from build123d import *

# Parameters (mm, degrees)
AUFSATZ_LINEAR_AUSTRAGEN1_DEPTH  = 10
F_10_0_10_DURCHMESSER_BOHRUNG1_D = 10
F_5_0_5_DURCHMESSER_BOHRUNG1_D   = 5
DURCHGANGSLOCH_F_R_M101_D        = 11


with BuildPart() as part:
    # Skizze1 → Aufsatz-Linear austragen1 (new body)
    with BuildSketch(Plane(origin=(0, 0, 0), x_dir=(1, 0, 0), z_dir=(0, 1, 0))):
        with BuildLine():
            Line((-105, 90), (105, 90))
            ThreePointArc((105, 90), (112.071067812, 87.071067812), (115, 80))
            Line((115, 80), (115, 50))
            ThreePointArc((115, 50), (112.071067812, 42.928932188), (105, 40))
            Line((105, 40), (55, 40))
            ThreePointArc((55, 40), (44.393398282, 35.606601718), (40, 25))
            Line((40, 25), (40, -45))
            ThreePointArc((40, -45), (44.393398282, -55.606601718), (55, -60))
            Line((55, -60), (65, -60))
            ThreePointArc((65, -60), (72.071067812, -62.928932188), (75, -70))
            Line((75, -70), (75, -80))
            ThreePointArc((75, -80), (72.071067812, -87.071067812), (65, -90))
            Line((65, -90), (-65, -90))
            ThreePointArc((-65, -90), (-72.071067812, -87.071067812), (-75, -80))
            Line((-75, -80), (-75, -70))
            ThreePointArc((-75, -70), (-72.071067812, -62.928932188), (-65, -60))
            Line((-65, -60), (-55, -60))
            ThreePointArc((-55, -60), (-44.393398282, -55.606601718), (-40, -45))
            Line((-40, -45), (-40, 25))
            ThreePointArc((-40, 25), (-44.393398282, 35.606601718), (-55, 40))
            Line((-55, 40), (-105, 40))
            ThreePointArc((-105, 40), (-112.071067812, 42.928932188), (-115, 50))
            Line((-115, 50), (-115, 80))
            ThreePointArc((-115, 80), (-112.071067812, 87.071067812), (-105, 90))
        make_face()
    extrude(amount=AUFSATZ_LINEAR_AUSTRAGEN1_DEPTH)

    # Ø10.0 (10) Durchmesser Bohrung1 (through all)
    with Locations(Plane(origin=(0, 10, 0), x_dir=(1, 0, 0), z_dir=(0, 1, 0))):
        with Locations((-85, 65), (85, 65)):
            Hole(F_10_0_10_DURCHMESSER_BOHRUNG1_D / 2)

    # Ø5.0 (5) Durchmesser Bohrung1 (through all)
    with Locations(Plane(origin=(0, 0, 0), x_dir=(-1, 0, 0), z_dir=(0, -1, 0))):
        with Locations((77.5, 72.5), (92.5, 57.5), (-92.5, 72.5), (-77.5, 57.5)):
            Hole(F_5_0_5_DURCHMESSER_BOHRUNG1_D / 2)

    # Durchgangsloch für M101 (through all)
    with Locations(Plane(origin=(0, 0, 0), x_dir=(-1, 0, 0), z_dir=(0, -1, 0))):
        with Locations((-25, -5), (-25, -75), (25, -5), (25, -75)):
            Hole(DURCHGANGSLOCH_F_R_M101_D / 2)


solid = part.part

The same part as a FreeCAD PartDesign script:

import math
import FreeCAD as App
import Part
import Sketcher

V = App.Vector
Q = App.Units.Quantity

doc = App.newDocument("Part")
body = doc.addObject("PartDesign::Body", "Body")

# Sketch on XZ plane
sketch1 = body.newObject("Sketcher::SketchObject", "Sketch")
sketch1.AttachmentSupport = (doc.getObject("XZ_Plane"), [""])
sketch1.MapMode = "FlatFace"
sketch1.addGeometry([
    Part.LineSegment(V(105, -90, 0), V(-105, -90, 0)),  # 0
    Part.ArcOfCircle(Part.Circle(V(-105, -80, 0), V(0, 0, 1), 10), math.radians(180), math.radians(270)),  # 1
    Part.LineSegment(V(-115, -80, 0), V(-115, -50, 0)),  # 2
    Part.ArcOfCircle(Part.Circle(V(-105, -50, 0), V(0, 0, 1), 10), math.radians(90), math.radians(180)),  # 3
    Part.LineSegment(V(-105, -40, 0), V(-55, -40, 0)),  # 4
    Part.ArcOfCircle(Part.Circle(V(-55, -25, 0), V(0, 0, 1), 15), math.radians(-90), math.radians(0)),  # 5
    Part.LineSegment(V(-40, -25, 0), V(-40, 45, 0)),  # 6
    Part.ArcOfCircle(Part.Circle(V(-55, 45, 0), V(0, 0, 1), 15), math.radians(0), math.radians(90)),  # 7
    Part.LineSegment(V(-55, 60, 0), V(-65, 60, 0)),  # 8
    Part.ArcOfCircle(Part.Circle(V(-65, 70, 0), V(0, 0, 1), 10), math.radians(180), math.radians(270)),  # 9
    Part.LineSegment(V(-75, 70, 0), V(-75, 80, 0)),  # 10
    Part.ArcOfCircle(Part.Circle(V(-65, 80, 0), V(0, 0, 1), 10), math.radians(90), math.radians(180)),  # 11
    Part.LineSegment(V(-65, 90, 0), V(65, 90, 0)),  # 12
    Part.ArcOfCircle(Part.Circle(V(65, 80, 0), V(0, 0, 1), 10), math.radians(0), math.radians(90)),  # 13
    Part.LineSegment(V(75, 80, 0), V(75, 70, 0)),  # 14
    Part.ArcOfCircle(Part.Circle(V(65, 70, 0), V(0, 0, 1), 10), math.radians(-90), math.radians(0)),  # 15
    Part.LineSegment(V(65, 60, 0), V(55, 60, 0)),  # 16
    Part.ArcOfCircle(Part.Circle(V(55, 45, 0), V(0, 0, 1), 15), math.radians(90), math.radians(180)),  # 17
    Part.LineSegment(V(40, 45, 0), V(40, -25, 0)),  # 18
    Part.ArcOfCircle(Part.Circle(V(55, -25, 0), V(0, 0, 1), 15), math.radians(180), math.radians(270)),  # 19
    Part.LineSegment(V(55, -40, 0), V(105, -40, 0)),  # 20
    Part.ArcOfCircle(Part.Circle(V(105, -50, 0), V(0, 0, 1), 10), math.radians(0), math.radians(90)),  # 21
    Part.LineSegment(V(115, -50, 0), V(115, -80, 0)),  # 22
    Part.ArcOfCircle(Part.Circle(V(105, -80, 0), V(0, 0, 1), 10), math.radians(-90), math.radians(0)),  # 23
], False)
sketch1.addConstraint([
    Sketcher.Constraint("Tangent", 0, 2, 1, 2),
    Sketcher.Constraint("Tangent", 1, 1, 2, 1),
    Sketcher.Constraint("Tangent", 2, 2, 3, 2),
    Sketcher.Constraint("Tangent", 3, 1, 4, 1),
    Sketcher.Constraint("Tangent", 4, 2, 5, 1),
    Sketcher.Constraint("Tangent", 5, 2, 6, 1),
    Sketcher.Constraint("Tangent", 6, 2, 7, 1),
    Sketcher.Constraint("Tangent", 7, 2, 8, 1),
    Sketcher.Constraint("Tangent", 8, 2, 9, 2),
    Sketcher.Constraint("Tangent", 9, 1, 10, 1),
    Sketcher.Constraint("Tangent", 10, 2, 11, 2),
    Sketcher.Constraint("Tangent", 11, 1, 12, 1),
    Sketcher.Constraint("Tangent", 12, 2, 13, 2),
    Sketcher.Constraint("Tangent", 13, 1, 14, 1),
    Sketcher.Constraint("Tangent", 14, 2, 15, 2),
    Sketcher.Constraint("Tangent", 15, 1, 16, 1),
    Sketcher.Constraint("Tangent", 16, 2, 17, 1),
    Sketcher.Constraint("Tangent", 17, 2, 18, 1),
    Sketcher.Constraint("Tangent", 18, 2, 19, 1),
    Sketcher.Constraint("Tangent", 19, 2, 20, 1),
    Sketcher.Constraint("Tangent", 20, 2, 21, 2),
    Sketcher.Constraint("Tangent", 21, 1, 22, 1),
    Sketcher.Constraint("Tangent", 22, 2, 23, 2),
    Sketcher.Constraint("Tangent", 23, 1, 0, 1),
    Sketcher.Constraint("Horizontal", 0),
    Sketcher.Constraint("Vertical", 2),
    Sketcher.Constraint("Horizontal", 4),
    Sketcher.Constraint("Vertical", 6),
    Sketcher.Constraint("Horizontal", 8),
    Sketcher.Constraint("Vertical", 10),
    Sketcher.Constraint("Horizontal", 12),
    Sketcher.Constraint("Vertical", 14),
    Sketcher.Constraint("Horizontal", 16),
    Sketcher.Constraint("Vertical", 18),
    Sketcher.Constraint("Horizontal", 20),
    Sketcher.Constraint("Vertical", 22),
    Sketcher.Constraint("Equal", 1, 3),
    Sketcher.Constraint("Equal", 5, 7),
    Sketcher.Constraint("Equal", 3, 9),
    Sketcher.Constraint("Equal", 9, 11),
    Sketcher.Constraint("Equal", 11, 13),
    Sketcher.Constraint("Equal", 13, 15),
    Sketcher.Constraint("Equal", 7, 17),
    Sketcher.Constraint("Equal", 17, 19),
    Sketcher.Constraint("Equal", 15, 21),
    Sketcher.Constraint("Equal", 21, 23),
    Sketcher.Constraint("Symmetric", 9, 3, 15, 3, -2),
    Sketcher.Constraint("Symmetric", 5, 3, 19, 3, -2),
    Sketcher.Constraint("Equal", 4, 20),
    Sketcher.Constraint("Equal", 16, 10),
    Sketcher.Constraint("Radius", 1, Q("10 mm")),
    Sketcher.Constraint("Radius", 5, Q("15 mm")),
    Sketcher.Constraint("DistanceX", 0, 2, 0, 1, Q("210 mm")),
    Sketcher.Constraint("DistanceX", 4, 1, 4, 2, Q("50 mm")),
    Sketcher.Constraint("DistanceX", 8, 2, 8, 1, Q("10 mm")),
    Sketcher.Constraint("DistanceY", 2, 1, 2, 2, Q("30 mm")),
    Sketcher.Constraint("DistanceY", 6, 1, 6, 2, Q("70 mm")),
    Sketcher.Constraint("DistanceY", 1, 3, -1, 1, Q("80 mm")),
])
pad1 = body.newObject("PartDesign::Pad", "Pad")
pad1.Profile = sketch1
pad1.Length = 10
pad1.Reversed = True

# Sketch on XZ plane
sketch2 = body.newObject("Sketcher::SketchObject", "Sketch001")
sketch2.AttachmentSupport = (doc.getObject("XZ_Plane"), [""])
sketch2.MapMode = "FlatFace"
sketch2.AttachmentOffset = App.Placement(V(0, 0, -10), App.Rotation())
sketch2.addGeometry([
    Part.Circle(V(-85, -65, 0), V(0, 0, 1), 5),
    Part.Circle(V(85, -65, 0), V(0, 0, 1), 5),
], False)
sketch2.addConstraint([
    Sketcher.Constraint("Equal", 0, 1),
    Sketcher.Constraint("Symmetric", 0, 3, 1, 3, -2),
    Sketcher.Constraint("Diameter", 0, Q("10 mm")),
    Sketcher.Constraint("DistanceX", 0, 3, -1, 1, Q("85 mm")),
    Sketcher.Constraint("DistanceY", 0, 3, -1, 1, Q("65 mm")),
])
doc.recompute()
hole = body.newObject("PartDesign::Hole", "Hole")
hole.Profile = sketch2
hole.ThreadType = "None"
hole.Diameter = 10
hole.DepthType = "ThroughAll"
hole.Reversed = True

# Sketch on XZ plane
sketch3 = body.newObject("Sketcher::SketchObject", "Sketch002")
sketch3.AttachmentSupport = (doc.getObject("XZ_Plane"), [""])
sketch3.MapMode = "FlatFace"
sketch3.addGeometry([
    Part.Circle(V(-77.5, -72.5, 0), V(0, 0, 1), 2.5),
    Part.Circle(V(-92.5, -57.5, 0), V(0, 0, 1), 2.5),
    Part.Circle(V(92.5, -72.5, 0), V(0, 0, 1), 2.5),
    Part.Circle(V(77.5, -57.5, 0), V(0, 0, 1), 2.5),
], False)
sketch3.addConstraint([
    Sketcher.Constraint("Equal", 0, 1),
    Sketcher.Constraint("Equal", 1, 2),
    Sketcher.Constraint("Equal", 2, 3),
    Sketcher.Constraint("Horizontal", 0, 3, 2, 3),
    Sketcher.Constraint("Horizontal", 1, 3, 3, 3),
    Sketcher.Constraint("Diameter", 0, Q("5 mm")),
    Sketcher.Constraint("DistanceX", 1, 3, 0, 3, Q("15 mm")),
    Sketcher.Constraint("DistanceY", 0, 3, 1, 3, Q("15 mm")),
    Sketcher.Constraint("DistanceX", 0, 3, 2, 3, Q("170 mm")),
    Sketcher.Constraint("DistanceX", 3, 3, 2, 3, Q("15 mm")),
    Sketcher.Constraint("DistanceX", 0, 3, -1, 1, Q("77.5 mm")),
    Sketcher.Constraint("DistanceY", 0, 3, -1, 1, Q("72.5 mm")),
])
doc.recompute()
hole2 = body.newObject("PartDesign::Hole", "Hole001")
hole2.Profile = sketch3
hole2.ThreadType = "None"
hole2.Diameter = 5
hole2.DepthType = "ThroughAll"

# Sketch on XZ plane
sketch4 = body.newObject("Sketcher::SketchObject", "Sketch003")
sketch4.AttachmentSupport = (doc.getObject("XZ_Plane"), [""])
sketch4.MapMode = "FlatFace"
sketch4.addGeometry([
    Part.Circle(V(25, 5, 0), V(0, 0, 1), 6),
    Part.Circle(V(25, 75, 0), V(0, 0, 1), 6),
    Part.Circle(V(-25, 5, 0), V(0, 0, 1), 6),
    Part.Circle(V(-25, 75, 0), V(0, 0, 1), 6),
], False)
sketch4.addConstraint([
    Sketcher.Constraint("Equal", 0, 1),
    Sketcher.Constraint("Equal", 1, 2),
    Sketcher.Constraint("Equal", 2, 3),
    Sketcher.Constraint("Symmetric", 0, 3, 2, 3, -2),
    Sketcher.Constraint("Symmetric", 1, 3, 3, 3, -2),
    Sketcher.Constraint("Vertical", 0, 3, 1, 3),
    Sketcher.Constraint("Diameter", 0, Q("11 mm")),
    Sketcher.Constraint("DistanceX", -1, 1, 0, 3, Q("25 mm")),
    Sketcher.Constraint("DistanceY", -1, 1, 0, 3, Q("5 mm")),
    Sketcher.Constraint("DistanceY", -1, 1, 1, 3, Q("75 mm")),
])
doc.recompute()
hole3 = body.newObject("PartDesign::Hole", "Hole002")
hole3.Profile = sketch4
hole3.ThreadType = "None"
hole3.Diameter = 11
hole3.DepthType = "ThroughAll"

doc.recompute()
